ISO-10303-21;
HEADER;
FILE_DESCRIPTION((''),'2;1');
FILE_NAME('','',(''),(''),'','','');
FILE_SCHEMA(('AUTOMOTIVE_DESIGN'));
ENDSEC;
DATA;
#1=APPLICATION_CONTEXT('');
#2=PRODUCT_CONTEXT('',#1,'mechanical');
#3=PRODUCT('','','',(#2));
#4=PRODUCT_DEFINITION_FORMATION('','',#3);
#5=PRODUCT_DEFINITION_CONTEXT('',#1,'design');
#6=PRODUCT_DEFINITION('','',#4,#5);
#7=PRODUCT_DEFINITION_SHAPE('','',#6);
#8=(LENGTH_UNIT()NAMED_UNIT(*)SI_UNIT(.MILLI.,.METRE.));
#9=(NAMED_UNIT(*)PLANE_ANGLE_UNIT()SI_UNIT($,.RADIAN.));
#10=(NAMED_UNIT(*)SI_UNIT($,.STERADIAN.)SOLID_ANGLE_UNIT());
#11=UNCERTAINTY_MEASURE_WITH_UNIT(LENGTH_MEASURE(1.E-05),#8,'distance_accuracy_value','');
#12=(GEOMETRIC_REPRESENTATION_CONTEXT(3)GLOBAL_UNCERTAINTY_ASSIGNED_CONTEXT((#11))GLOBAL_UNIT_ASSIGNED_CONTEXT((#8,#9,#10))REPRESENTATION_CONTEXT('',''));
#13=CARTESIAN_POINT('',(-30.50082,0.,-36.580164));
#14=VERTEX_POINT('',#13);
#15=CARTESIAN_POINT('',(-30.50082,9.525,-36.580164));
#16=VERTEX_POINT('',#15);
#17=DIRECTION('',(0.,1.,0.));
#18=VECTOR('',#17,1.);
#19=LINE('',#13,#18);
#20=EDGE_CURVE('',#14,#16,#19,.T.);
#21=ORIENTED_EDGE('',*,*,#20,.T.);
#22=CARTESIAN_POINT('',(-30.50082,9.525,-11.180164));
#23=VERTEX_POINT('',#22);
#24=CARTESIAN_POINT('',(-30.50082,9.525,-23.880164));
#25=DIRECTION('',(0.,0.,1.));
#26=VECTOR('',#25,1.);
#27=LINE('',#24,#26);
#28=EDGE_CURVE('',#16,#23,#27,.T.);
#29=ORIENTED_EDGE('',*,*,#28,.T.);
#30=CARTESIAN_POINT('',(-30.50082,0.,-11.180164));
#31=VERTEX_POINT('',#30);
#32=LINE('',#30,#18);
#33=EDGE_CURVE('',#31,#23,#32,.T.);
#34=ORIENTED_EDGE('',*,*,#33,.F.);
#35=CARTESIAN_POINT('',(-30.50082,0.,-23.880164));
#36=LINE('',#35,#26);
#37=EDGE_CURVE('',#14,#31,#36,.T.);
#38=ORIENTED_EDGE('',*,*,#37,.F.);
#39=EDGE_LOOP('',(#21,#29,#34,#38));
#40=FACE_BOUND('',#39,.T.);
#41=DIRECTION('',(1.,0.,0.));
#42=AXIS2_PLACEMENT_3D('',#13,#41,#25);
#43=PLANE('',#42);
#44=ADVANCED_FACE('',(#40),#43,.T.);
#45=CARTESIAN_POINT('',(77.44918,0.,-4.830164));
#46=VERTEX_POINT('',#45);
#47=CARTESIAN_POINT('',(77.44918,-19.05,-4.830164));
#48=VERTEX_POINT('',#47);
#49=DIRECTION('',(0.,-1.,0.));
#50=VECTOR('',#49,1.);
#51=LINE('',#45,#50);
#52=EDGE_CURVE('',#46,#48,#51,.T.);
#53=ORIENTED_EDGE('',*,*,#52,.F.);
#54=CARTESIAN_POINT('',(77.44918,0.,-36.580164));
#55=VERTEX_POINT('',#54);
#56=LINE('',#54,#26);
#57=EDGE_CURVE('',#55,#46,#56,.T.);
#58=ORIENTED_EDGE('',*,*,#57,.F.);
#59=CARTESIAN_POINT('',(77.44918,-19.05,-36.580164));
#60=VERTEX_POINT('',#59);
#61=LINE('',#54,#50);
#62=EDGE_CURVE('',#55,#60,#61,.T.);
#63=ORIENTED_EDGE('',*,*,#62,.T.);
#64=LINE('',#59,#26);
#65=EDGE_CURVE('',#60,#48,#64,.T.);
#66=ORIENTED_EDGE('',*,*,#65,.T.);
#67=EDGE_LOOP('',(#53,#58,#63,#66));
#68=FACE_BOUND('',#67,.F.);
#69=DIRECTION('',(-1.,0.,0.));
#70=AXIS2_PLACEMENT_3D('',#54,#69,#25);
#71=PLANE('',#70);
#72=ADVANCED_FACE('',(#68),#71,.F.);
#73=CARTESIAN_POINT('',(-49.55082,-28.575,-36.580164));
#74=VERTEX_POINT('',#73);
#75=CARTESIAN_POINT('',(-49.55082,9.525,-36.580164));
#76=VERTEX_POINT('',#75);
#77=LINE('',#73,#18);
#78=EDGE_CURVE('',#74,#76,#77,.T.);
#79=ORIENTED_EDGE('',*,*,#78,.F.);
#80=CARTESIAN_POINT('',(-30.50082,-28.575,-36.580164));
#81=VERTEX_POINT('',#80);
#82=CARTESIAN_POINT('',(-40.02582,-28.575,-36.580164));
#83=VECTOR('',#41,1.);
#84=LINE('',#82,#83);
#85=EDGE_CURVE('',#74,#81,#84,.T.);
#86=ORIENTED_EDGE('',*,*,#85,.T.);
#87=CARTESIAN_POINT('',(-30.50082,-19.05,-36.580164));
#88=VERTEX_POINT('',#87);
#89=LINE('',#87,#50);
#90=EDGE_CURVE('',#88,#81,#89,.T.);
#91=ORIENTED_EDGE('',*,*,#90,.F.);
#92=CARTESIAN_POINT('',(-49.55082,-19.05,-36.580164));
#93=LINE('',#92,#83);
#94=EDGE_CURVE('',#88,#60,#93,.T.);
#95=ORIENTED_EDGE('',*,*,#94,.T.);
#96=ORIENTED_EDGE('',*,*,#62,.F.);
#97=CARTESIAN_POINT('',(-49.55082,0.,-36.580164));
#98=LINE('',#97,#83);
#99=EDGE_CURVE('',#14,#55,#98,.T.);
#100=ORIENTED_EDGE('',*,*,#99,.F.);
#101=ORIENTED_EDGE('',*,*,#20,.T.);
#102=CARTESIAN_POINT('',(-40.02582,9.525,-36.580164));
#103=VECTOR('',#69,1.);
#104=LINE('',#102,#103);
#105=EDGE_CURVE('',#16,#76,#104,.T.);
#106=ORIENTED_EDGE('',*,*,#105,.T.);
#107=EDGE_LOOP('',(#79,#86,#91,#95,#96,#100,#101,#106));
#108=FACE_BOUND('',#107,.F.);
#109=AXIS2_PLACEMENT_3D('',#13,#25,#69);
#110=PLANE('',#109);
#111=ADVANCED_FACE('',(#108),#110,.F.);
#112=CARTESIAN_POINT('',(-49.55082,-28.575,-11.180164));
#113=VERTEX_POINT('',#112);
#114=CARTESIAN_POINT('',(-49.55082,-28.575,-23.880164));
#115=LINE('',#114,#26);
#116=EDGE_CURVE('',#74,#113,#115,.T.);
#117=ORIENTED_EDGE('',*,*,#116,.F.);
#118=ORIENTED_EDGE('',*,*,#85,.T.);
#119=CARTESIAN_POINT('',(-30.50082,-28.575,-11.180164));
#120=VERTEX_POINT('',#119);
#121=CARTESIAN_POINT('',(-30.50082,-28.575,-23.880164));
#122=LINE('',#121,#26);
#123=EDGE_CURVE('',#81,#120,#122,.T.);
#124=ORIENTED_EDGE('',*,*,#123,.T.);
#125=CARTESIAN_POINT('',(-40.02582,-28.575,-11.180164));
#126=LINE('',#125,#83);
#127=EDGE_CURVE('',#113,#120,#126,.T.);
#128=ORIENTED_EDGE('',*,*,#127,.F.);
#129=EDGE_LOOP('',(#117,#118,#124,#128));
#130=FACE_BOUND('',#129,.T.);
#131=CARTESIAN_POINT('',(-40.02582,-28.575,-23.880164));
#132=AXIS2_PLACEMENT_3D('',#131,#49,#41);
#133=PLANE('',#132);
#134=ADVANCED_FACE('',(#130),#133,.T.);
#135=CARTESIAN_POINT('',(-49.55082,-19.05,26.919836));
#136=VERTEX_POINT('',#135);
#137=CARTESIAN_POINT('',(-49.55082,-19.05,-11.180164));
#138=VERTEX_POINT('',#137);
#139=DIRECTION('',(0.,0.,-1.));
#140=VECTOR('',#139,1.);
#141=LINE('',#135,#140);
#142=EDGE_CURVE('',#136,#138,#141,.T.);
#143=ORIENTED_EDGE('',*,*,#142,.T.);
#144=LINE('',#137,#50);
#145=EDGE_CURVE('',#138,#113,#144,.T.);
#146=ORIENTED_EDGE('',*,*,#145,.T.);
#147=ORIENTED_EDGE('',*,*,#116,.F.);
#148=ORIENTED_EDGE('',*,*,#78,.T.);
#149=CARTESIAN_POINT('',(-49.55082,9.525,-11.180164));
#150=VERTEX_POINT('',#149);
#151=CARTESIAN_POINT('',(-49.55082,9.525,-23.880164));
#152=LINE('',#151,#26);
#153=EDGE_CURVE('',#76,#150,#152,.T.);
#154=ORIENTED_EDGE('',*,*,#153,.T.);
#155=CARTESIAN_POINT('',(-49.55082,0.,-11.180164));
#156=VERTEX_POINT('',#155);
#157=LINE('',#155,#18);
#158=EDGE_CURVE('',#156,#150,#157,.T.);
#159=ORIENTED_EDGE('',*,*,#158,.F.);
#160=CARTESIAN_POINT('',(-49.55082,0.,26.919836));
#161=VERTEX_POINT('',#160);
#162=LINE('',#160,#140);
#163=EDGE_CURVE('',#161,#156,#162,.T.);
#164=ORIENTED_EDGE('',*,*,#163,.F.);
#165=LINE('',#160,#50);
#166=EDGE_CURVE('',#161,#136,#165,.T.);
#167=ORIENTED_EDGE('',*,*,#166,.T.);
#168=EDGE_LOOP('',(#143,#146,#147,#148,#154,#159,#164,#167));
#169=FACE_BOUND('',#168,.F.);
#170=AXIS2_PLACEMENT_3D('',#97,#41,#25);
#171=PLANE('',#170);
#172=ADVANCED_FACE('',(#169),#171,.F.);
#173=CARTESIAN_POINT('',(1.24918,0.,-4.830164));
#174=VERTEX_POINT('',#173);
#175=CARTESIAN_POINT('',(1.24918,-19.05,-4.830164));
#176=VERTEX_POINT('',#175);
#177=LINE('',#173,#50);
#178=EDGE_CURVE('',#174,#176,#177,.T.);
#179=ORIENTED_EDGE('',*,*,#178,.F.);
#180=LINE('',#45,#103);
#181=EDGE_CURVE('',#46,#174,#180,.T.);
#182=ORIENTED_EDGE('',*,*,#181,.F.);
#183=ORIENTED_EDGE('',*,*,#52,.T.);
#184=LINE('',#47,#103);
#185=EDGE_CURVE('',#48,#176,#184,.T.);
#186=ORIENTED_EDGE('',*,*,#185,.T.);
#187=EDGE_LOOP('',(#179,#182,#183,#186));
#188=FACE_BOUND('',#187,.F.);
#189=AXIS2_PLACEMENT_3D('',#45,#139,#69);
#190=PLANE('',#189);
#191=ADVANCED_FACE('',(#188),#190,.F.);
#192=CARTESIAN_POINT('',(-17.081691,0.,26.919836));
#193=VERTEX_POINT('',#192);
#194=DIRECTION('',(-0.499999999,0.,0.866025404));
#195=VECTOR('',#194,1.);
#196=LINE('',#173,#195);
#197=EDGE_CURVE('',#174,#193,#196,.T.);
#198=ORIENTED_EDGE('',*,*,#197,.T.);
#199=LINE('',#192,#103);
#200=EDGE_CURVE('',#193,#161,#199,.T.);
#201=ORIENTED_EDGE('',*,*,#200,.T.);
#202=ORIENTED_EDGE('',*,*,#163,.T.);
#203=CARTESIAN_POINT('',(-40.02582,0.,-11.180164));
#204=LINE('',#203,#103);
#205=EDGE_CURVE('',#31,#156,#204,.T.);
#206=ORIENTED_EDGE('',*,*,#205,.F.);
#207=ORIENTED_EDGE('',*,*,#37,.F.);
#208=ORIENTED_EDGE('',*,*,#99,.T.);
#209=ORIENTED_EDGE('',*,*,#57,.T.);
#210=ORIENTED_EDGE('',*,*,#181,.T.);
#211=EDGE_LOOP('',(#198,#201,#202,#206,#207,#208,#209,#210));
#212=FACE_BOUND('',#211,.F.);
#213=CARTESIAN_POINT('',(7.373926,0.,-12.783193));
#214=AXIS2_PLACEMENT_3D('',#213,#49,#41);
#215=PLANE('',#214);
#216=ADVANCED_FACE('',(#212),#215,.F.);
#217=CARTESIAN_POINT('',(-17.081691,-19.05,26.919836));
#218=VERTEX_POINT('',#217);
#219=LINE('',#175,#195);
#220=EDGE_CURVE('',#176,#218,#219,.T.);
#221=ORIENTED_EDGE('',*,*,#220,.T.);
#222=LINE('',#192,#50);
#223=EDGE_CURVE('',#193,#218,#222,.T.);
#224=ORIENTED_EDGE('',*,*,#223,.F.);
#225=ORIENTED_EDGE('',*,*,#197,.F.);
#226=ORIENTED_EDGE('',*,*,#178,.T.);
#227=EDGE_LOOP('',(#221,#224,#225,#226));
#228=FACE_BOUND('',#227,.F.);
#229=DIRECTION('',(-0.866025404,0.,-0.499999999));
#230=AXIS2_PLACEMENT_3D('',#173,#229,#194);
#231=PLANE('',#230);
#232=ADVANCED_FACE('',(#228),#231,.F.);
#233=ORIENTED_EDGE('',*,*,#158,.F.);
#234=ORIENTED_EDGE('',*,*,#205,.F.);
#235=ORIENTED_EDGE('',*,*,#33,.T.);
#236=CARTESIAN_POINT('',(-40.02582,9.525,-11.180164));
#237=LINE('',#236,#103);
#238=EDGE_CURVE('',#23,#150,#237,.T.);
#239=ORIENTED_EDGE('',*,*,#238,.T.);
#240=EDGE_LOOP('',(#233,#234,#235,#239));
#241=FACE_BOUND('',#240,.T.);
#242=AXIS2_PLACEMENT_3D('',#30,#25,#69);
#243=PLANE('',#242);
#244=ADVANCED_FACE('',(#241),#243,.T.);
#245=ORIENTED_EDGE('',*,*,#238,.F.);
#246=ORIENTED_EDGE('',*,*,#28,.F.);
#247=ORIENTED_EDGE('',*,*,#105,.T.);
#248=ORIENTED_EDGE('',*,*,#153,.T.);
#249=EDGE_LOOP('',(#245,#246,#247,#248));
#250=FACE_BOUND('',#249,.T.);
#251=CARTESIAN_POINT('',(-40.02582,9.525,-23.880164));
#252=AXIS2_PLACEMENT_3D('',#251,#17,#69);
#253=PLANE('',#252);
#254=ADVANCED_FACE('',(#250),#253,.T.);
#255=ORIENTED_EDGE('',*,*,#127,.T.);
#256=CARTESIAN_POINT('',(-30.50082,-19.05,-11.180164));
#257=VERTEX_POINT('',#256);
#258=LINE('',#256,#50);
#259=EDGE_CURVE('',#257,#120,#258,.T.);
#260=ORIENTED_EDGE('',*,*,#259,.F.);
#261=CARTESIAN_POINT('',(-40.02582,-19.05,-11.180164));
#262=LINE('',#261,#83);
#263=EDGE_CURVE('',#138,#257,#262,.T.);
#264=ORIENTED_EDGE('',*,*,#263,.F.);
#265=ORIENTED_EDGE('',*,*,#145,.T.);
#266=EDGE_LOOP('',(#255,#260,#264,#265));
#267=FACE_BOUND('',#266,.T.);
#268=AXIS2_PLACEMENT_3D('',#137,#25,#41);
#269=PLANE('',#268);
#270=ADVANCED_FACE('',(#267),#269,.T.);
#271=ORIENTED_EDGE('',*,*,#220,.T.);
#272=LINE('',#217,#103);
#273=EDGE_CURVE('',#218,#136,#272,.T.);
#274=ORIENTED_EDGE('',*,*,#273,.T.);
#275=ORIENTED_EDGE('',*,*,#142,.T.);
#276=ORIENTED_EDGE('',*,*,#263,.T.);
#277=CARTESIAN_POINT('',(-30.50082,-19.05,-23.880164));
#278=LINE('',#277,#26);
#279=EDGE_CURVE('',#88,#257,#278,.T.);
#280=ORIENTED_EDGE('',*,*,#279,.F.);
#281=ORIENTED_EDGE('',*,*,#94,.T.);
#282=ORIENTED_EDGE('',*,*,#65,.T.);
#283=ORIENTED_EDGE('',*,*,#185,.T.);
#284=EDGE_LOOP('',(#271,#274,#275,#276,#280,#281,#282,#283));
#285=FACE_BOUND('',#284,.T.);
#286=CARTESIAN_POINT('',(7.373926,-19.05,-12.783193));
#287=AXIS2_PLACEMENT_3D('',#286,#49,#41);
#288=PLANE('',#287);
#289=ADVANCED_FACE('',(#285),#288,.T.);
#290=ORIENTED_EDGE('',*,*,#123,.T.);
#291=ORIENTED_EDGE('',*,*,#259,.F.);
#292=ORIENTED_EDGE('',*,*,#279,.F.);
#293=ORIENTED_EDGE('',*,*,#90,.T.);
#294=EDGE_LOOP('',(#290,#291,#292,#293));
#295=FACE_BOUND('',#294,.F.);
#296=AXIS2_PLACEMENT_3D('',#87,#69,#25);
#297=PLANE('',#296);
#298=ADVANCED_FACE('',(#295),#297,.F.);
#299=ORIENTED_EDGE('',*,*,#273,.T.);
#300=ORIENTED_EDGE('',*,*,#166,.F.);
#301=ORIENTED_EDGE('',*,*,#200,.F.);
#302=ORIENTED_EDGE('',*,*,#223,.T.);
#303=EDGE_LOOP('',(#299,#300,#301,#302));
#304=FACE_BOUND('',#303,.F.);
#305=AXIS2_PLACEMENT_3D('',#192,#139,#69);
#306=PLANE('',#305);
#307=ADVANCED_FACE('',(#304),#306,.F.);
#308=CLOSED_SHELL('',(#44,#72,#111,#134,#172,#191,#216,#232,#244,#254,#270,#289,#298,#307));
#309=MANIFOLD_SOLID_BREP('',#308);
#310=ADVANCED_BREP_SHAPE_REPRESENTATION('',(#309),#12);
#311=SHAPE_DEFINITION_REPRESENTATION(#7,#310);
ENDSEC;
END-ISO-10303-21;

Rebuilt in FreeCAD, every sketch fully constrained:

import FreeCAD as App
import Part
import Sketcher
Q = App.Units.Quantity


def add_polygon(sketch, points):
    """Adds a closed chain of lines whose ends are joined by coincident constraints."""
    first, n = sketch.GeometryCount, len(points)
    for a, b in zip(points, points[1:] + points[:1]):
        sketch.addGeometry(Part.LineSegment(App.Vector(*a, 0), App.Vector(*b, 0)), False)
    for i in range(n):
        sketch.addConstraint(Sketcher.Constraint("Coincident", first + i, 2, first + (i + 1) % n, 1))

doc = App.newDocument("Part")
body = doc.addObject("PartDesign::Body", "Body")

sketch1 = doc.addObject("Sketcher::SketchObject", "Sketch")
body.addObject(sketch1)
sketch1.AttachmentSupport = (doc.XZ_Plane, [""])
sketch1.MapMode = "FlatFace"
add_polygon(sketch1, [(-50, 27), (-50, -37), (77, -37), (77, -5), (1, -5), (-17, 27)])
sketch1.addConstraint(Sketcher.Constraint("Vertical", 0))
sketch1.addConstraint(Sketcher.Constraint("Horizontal", 1))
sketch1.addConstraint(Sketcher.Constraint("Vertical", 2))
sketch1.addConstraint(Sketcher.Constraint("Horizontal", 3))
sketch1.addConstraint(Sketcher.Constraint("Horizontal", 5))
sketch1.addConstraint(Sketcher.Constraint("DistanceX", 1, 1, 1, 2, Q("5 in")))
sketch1.addConstraint(Sketcher.Constraint("DistanceX", 3, 2, 3, 1, Q("3 in")))
sketch1.addConstraint(Sketcher.Constraint("DistanceY", 0, 2, 0, 1, Q("2.5 in")))
sketch1.addConstraint(Sketcher.Constraint("Angle", 4, Q("120 deg")))
sketch1.addConstraint(Sketcher.Constraint("DistanceY", 2, 1, 2, 2, Q("1.25 in")))
sketch1.addConstraint(Sketcher.Constraint("DistanceX", 0, 2, -1, 1, 49.55082))
sketch1.addConstraint(Sketcher.Constraint("DistanceY", 0, 2, -1, 1, 36.580164))
pad1 = doc.addObject("PartDesign::Pad", "Pad")
body.addObject(pad1)
pad1.Profile = sketch1
pad1.Length = Q("0.75 in")

sketch2 = doc.addObject("Sketcher::SketchObject", "Sketch001")
body.addObject(sketch2)
sketch2.AttachmentSupport = (doc.XZ_Plane, [""])
sketch2.MapMode = "FlatFace"
sketch2.AttachmentOffset = App.Placement(App.Vector(0, 0, 0.75 * 25.4), App.Rotation())
add_polygon(sketch2, [(-50, -11), (-50, -37), (-31, -37), (-31, -11)])
sketch2.addConstraint(Sketcher.Constraint("Vertical", 0))
sketch2.addConstraint(Sketcher.Constraint("Horizontal", 1))
sketch2.addConstraint(Sketcher.Constraint("Vertical", 2))
sketch2.addConstraint(Sketcher.Constraint("Horizontal", 3))
sketch2.addConstraint(Sketcher.Constraint("DistanceY", 0, 2, 0, 1, Q("1 in")))
sketch2.addConstraint(Sketcher.Constraint("DistanceX", 1, 1, 1, 2, Q("0.75 in")))
sketch2.addConstraint(Sketcher.Constraint("DistanceX", 0, 2, -1, 1, 49.55082))
sketch2.addConstraint(Sketcher.Constraint("DistanceY", 0, 2, -1, 1, 36.580164))
pad2 = doc.addObject("PartDesign::Pad", "Pad001")
body.addObject(pad2)
pad2.Profile = sketch2
pad2.Length = Q("0.375 in")

sketch3 = doc.addObject("Sketcher::SketchObject", "Sketch002")
body.addObject(sketch3)
sketch3.AttachmentSupport = (doc.XZ_Plane, [""])
sketch3.MapMode = "FlatFace"
add_polygon(sketch3, [(-31, -11), (-31, -37), (-50, -37), (-50, -11)])
sketch3.addConstraint(Sketcher.Constraint("Vertical", 0))
sketch3.addConstraint(Sketcher.Constraint("Horizontal", 1))
sketch3.addConstraint(Sketcher.Constraint("Vertical", 2))
sketch3.addConstraint(Sketcher.Constraint("Horizontal", 3))
sketch3.addConstraint(Sketcher.Constraint("DistanceY", 0, 2, 0, 1, Q("1 in")))
sketch3.addConstraint(Sketcher.Constraint("DistanceX", 1, 2, 1, 1, Q("0.75 in")))
sketch3.addConstraint(Sketcher.Constraint("DistanceX", 0, 2, -1, 1, 30.50082))
sketch3.addConstraint(Sketcher.Constraint("DistanceY", 0, 2, -1, 1, 36.580164))
pad3 = doc.addObject("PartDesign::Pad", "Pad002")
body.addObject(pad3)
pad3.Profile = sketch3
pad3.Length = Q("0.375 in")
pad3.Reversed = True

doc.recompute()
